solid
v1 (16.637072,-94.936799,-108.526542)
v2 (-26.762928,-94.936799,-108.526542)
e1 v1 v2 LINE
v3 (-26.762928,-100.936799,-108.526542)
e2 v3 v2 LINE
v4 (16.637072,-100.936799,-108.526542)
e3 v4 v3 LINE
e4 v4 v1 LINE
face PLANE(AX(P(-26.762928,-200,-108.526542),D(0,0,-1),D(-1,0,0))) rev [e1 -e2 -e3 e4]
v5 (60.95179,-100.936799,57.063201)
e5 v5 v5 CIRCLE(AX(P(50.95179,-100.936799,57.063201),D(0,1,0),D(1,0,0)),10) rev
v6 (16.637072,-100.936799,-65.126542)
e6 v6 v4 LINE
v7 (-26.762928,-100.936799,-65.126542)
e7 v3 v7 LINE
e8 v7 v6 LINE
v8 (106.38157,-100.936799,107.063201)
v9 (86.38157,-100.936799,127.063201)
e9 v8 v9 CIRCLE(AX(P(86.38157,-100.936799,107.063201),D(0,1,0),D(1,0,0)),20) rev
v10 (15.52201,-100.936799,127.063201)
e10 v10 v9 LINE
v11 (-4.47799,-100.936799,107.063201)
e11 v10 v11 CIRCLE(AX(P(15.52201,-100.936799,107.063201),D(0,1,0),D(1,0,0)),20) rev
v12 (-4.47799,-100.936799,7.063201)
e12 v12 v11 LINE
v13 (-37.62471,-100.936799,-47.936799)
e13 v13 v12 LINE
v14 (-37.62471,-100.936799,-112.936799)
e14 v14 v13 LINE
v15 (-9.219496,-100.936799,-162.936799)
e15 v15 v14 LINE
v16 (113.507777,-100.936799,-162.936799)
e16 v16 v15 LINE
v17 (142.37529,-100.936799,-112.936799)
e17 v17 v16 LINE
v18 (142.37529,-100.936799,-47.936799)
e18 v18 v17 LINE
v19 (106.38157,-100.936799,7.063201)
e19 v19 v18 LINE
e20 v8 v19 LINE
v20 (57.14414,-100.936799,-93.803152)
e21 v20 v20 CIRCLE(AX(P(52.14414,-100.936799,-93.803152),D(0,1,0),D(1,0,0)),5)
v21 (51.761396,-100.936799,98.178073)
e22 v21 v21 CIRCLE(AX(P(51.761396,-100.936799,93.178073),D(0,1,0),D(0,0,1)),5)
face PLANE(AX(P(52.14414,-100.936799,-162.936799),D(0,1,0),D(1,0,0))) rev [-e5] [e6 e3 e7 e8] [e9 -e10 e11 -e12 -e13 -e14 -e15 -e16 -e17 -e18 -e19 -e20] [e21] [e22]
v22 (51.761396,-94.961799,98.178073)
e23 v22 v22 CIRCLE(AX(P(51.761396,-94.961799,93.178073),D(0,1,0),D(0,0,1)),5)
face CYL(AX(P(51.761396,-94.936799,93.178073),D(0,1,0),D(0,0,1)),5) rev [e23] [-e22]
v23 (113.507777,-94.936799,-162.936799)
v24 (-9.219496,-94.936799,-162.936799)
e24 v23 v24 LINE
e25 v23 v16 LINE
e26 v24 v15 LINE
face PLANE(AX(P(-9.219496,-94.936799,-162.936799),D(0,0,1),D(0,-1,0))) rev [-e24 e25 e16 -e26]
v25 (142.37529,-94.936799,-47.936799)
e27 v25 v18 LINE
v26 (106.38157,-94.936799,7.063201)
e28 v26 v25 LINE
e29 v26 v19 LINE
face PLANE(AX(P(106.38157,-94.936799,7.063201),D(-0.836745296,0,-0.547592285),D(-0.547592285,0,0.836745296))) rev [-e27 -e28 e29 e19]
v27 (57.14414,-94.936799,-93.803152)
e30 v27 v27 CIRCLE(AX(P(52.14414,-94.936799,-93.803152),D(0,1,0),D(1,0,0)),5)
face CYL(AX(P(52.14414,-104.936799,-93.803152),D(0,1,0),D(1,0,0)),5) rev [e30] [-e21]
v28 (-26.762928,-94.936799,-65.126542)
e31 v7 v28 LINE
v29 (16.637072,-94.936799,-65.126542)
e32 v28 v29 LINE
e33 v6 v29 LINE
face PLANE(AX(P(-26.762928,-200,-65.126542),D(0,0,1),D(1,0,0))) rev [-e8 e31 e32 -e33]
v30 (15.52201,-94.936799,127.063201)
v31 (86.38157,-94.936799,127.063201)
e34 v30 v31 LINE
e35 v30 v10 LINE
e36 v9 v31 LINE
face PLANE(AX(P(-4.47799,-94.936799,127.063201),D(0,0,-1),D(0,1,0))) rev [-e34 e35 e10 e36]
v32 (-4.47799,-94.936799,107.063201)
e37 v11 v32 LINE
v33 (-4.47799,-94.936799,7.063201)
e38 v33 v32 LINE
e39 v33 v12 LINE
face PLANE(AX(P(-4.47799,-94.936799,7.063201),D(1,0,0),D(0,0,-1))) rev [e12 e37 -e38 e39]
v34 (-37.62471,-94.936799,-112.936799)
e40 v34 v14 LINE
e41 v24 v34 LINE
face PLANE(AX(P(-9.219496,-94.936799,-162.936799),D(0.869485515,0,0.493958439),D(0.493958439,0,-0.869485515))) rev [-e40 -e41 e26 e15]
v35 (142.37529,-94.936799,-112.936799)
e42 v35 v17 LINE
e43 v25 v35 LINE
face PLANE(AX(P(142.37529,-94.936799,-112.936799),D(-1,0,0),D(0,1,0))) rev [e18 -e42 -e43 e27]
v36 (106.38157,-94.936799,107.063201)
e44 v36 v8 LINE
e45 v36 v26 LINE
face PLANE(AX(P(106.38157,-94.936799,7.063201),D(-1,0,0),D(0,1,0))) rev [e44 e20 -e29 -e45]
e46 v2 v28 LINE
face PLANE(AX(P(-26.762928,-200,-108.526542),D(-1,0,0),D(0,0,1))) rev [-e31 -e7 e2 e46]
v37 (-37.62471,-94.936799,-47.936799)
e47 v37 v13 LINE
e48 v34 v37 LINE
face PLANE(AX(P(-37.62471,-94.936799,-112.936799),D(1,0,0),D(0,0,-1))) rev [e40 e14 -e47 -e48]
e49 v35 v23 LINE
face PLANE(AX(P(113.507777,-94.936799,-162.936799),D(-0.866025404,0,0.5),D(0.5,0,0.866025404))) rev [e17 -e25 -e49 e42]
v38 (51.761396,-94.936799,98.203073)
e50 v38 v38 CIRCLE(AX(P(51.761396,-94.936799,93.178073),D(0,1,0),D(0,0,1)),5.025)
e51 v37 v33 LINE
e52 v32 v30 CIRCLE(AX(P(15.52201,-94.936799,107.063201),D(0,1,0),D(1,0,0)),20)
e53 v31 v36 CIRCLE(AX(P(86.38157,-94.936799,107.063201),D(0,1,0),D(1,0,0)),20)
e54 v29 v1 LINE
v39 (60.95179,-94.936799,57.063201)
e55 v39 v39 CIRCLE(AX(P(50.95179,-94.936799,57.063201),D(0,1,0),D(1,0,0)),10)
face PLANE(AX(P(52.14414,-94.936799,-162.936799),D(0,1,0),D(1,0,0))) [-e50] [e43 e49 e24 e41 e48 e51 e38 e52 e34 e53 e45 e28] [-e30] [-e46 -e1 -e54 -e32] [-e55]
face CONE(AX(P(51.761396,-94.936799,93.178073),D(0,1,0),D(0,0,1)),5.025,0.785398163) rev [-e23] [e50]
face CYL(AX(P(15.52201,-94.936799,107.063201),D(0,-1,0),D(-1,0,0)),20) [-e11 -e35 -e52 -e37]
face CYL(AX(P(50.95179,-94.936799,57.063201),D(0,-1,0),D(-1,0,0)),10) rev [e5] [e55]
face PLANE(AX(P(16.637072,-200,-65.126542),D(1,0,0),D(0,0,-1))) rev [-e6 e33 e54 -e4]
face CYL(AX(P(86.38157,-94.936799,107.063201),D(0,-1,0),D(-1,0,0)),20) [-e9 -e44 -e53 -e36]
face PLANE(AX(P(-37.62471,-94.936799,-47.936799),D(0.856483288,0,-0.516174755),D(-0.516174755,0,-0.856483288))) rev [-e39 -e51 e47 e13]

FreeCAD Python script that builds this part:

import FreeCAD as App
import Part
import Sketcher
Q = App.Units.Quantity


def edges_at(feature, points):
    """Names of the edges that pass closest to the given points."""
    edges = feature.Shape.Edges
    near = lambda p: min(range(len(edges)), key=lambda i: edges[i].distToShape(Part.Vertex(*p))[0])
    return sorted({f"Edge{near(p) + 1}" for p in points})


def add_polygon(sketch, points):
    """Adds a closed chain of lines whose ends are joined by coincident constraints."""
    first, n = sketch.GeometryCount, len(points)
    for a, b in zip(points, points[1:] + points[:1]):
        sketch.addGeometry(Part.LineSegment(App.Vector(*a, 0), App.Vector(*b, 0)), False)
    for i in range(n):
        sketch.addConstraint(Sketcher.Constraint("Coincident", first + i, 2, first + (i + 1) % n, 1))

doc = App.newDocument("Part")
body = doc.addObject("PartDesign::Body", "Body")

sketch1 = body.newObject("Sketcher::SketchObject", "Sketch")
sketch1.AttachmentSupport = (doc.getObject("XY_Plane"), [""])
sketch1.MapMode = "FlatFace"
add_polygon(sketch1, [(61, 0), (-61, 0), (-90, -50), (-90, -115), (-57, -170), (-57, -290), (54, -290), (54, -170), (90, -115), (90, -50)])
sketch1.addConstraint(Sketcher.Constraint("Horizontal", 0))
sketch1.addConstraint(Sketcher.Constraint("Vertical", 2))
sketch1.addConstraint(Sketcher.Constraint("Vertical", 4))
sketch1.addConstraint(Sketcher.Constraint("Horizontal", 5))
sketch1.addConstraint(Sketcher.Constraint("Vertical", 6))
sketch1.addConstraint(Sketcher.Constraint("Vertical", 8))
sketch1.addConstraint(Sketcher.Constraint("Symmetric", 0, 2, 9, 2, -1, 1))
sketch1.addConstraint(Sketcher.Constraint("Horizontal", 3, 2, 6, 2))
sketch1.addConstraint(Sketcher.Constraint("Horizontal", 2, 2, 7, 2))
sketch1.addConstraint(Sketcher.Constraint("Horizontal", 1, 2, 8, 2))
sketch1.addConstraint(Sketcher.Constraint("DistanceY", 2, 2, 2, 1, Q("65 mm")))
sketch1.addConstraint(Sketcher.Constraint("DistanceY", 4, 2, 4, 1, Q("120 mm")))
sketch1.addConstraint(Sketcher.Constraint("Angle", 9, Q("120 deg")))
sketch1.addConstraint(Sketcher.Constraint("DistanceY", 1, 2, -1, 1, Q("50 mm")))
sketch1.addConstraint(Sketcher.Constraint("DistanceY", 3, 2, -1, 1, Q("170 mm")))
sketch1.addConstraint(Sketcher.Constraint("DistanceX", 2, 2, 7, 2, Q("180 mm")))
sketch1.addConstraint(Sketcher.Constraint("DistanceX", 5, 1, 5, 2, Q("110.859561 mm")))
sketch1.addConstraint(Sketcher.Constraint("Distance", 1, Q("57.505271 mm")))
sketch1.addConstraint(Sketcher.Constraint("Distance", 3, Q("64.216081 mm")))
pad1 = body.newObject("PartDesign::Pad", "Pad")
pad1.Profile = sketch1
pad1.Length = 6
doc.recompute()

fillet = body.newObject("PartDesign::Fillet", "Fillet")
fillet.Base = (pad1, edges_at(pad1, [(54.237, -290, 3)]))
fillet.Radius = 20
doc.recompute()

fillet2 = body.newObject("PartDesign::Fillet", "Fillet001")
fillet2.Base = (fillet, edges_at(fillet, [(-56.622, -290, 3)]))
fillet2.Radius = 20

sketch2 = body.newObject("Sketcher::SketchObject", "Sketch001")
sketch2.AttachmentSupport = (doc.getObject("XY_Plane"), [""])
sketch2.MapMode = "FlatFace"
sketch2.addGeometry(Part.Circle(App.Vector(-1, -220, 0), App.Vector(0, 0, 1), 10), False)
sketch2.addConstraint(Sketcher.Constraint("Diameter", 0, Q("20 mm")))
sketch2.addConstraint(Sketcher.Constraint("DistanceY", 0, 3, -1, 1, Q("220 mm")))
sketch2.addConstraint(Sketcher.Constraint("DistanceX", 0, 3, -1, 1, Q("1.19235 mm")))
pocket1 = body.newObject("PartDesign::Pocket", "Pocket")
pocket1.Profile = sketch2
pocket1.Type = "ThroughAll"
pocket1.Midplane = True

sketch3 = body.newObject("Sketcher::SketchObject", "Sketch002")
sketch3.AttachmentSupport = (doc.getObject("XY_Plane"), [""])
sketch3.MapMode = "FlatFace"
sketch3.AttachmentOffset = App.Placement(App.Vector(0, 0, 6), App.Rotation())
sketch3.addGeometry(Part.Circle(App.Vector(0, -69, 0), App.Vector(0, 0, 1), 5), False)
sketch3.addConstraint(Sketcher.Constraint("PointOnObject", 0, 3, -2))
sketch3.addConstraint(Sketcher.Constraint("Diameter", 0, Q("10 mm")))
sketch3.addConstraint(Sketcher.Constraint("DistanceY", 0, 3, -1, 1, Q("69.133647 mm")))
pocket2 = body.newObject("PartDesign::Pocket", "Pocket001")
pocket2.Profile = sketch3
pocket2.Length = 10
body2 = doc.addObject("PartDesign::Body", "Body001")
doc.recompute()

body.Placement = App.Placement(App.Vector(0, -122.936799, 120.936799), App.Rotation(App.Vector(1, 0, 0), 90))
boolean = body2.newObject("PartDesign::Boolean", "Boolean")
boolean.Type = "Fuse"
boolean.addObjects([body])
body3 = doc.addObject("PartDesign::Body", "Body002")
doc.recompute()

body2.Placement = App.Placement(App.Vector(0, -223.873598, -42), App.Rotation(App.Vector(1, 0, 0), 180))
boolean2 = body3.newObject("PartDesign::Boolean", "Boolean001")
boolean2.Type = "Fuse"
boolean2.addObjects([body2])
body4 = doc.addObject("PartDesign::Body", "Body003")
doc.recompute()

body3.Placement = App.Placement(App.Vector(52.14414, 0, 0), App.Rotation(App.Vector(0, 0, 1), 0))
boolean3 = body4.newObject("PartDesign::Boolean", "Boolean002")
boolean3.Type = "Fuse"
boolean3.addObjects([body3])

sketch4 = body4.newObject("Sketcher::SketchObject", "Sketch003")
sketch4.AttachmentSupport = (doc.getObject("XZ_Plane003"), [""])
sketch4.MapMode = "FlatFace"
sketch4.AttachmentOffset = App.Placement(App.Vector(0, 0, 94.936799), App.Rotation())
sketch4.addGeometry(Part.Circle(App.Vector(52, 93, 0), App.Vector(0, 0, 1), 5), False)
sketch4.addConstraint(Sketcher.Constraint("Diameter", 0, Q("10 mm")))
sketch4.addConstraint(Sketcher.Constraint("DistanceX", -1, 1, 0, 3, Q("51.761396 mm")))
sketch4.addConstraint(Sketcher.Constraint("DistanceY", -1, 1, 0, 3, Q("93.178073 mm")))
doc.recompute()
hole = body4.newObject("PartDesign::Hole", "Hole")
hole.Profile = sketch4
hole.ThreadType = "None"
hole.Diameter = 10
hole.DepthType = "Dimension"
hole.Depth = 50
hole.DrillPoint = "Angled"
hole.DrillPointAngle = 118
hole.HoleCutType = "Countersink"
hole.HoleCutDiameter = 10.05
hole.HoleCutCountersinkAngle = 90
hole.Reversed = True

sketch5 = body4.newObject("Sketcher::SketchObject", "Sketch004")
sketch5.AttachmentSupport = (doc.getObject("XZ_Plane003"), [""])
sketch5.MapMode = "FlatFace"
add_polygon(sketch5, [(-27, -109), (-27, -65), (17, -65), (17, -109)])
sketch5.addConstraint(Sketcher.Constraint("Vertical", 0))
sketch5.addConstraint(Sketcher.Constraint("Horizontal", 1))
sketch5.addConstraint(Sketcher.Constraint("Vertical", 2))
sketch5.addConstraint(Sketcher.Constraint("Horizontal", 3))
sketch5.addConstraint(Sketcher.Constraint("Equal", 3, 0))
sketch5.addConstraint(Sketcher.Constraint("DistanceX", 1, 1, 1, 2, Q("43.4 mm")))
sketch5.addConstraint(Sketcher.Constraint("DistanceY", 0, 2, -1, 1, Q("65.126542 mm")))
sketch5.addConstraint(Sketcher.Constraint("DistanceX", 0, 2, -1, 1, Q("26.762928 mm")))
pocket3 = body4.newObject("PartDesign::Pocket", "Pocket002")
pocket3.Profile = sketch5
pocket3.Length = 200
pocket3.Reversed = True

doc.recompute()
